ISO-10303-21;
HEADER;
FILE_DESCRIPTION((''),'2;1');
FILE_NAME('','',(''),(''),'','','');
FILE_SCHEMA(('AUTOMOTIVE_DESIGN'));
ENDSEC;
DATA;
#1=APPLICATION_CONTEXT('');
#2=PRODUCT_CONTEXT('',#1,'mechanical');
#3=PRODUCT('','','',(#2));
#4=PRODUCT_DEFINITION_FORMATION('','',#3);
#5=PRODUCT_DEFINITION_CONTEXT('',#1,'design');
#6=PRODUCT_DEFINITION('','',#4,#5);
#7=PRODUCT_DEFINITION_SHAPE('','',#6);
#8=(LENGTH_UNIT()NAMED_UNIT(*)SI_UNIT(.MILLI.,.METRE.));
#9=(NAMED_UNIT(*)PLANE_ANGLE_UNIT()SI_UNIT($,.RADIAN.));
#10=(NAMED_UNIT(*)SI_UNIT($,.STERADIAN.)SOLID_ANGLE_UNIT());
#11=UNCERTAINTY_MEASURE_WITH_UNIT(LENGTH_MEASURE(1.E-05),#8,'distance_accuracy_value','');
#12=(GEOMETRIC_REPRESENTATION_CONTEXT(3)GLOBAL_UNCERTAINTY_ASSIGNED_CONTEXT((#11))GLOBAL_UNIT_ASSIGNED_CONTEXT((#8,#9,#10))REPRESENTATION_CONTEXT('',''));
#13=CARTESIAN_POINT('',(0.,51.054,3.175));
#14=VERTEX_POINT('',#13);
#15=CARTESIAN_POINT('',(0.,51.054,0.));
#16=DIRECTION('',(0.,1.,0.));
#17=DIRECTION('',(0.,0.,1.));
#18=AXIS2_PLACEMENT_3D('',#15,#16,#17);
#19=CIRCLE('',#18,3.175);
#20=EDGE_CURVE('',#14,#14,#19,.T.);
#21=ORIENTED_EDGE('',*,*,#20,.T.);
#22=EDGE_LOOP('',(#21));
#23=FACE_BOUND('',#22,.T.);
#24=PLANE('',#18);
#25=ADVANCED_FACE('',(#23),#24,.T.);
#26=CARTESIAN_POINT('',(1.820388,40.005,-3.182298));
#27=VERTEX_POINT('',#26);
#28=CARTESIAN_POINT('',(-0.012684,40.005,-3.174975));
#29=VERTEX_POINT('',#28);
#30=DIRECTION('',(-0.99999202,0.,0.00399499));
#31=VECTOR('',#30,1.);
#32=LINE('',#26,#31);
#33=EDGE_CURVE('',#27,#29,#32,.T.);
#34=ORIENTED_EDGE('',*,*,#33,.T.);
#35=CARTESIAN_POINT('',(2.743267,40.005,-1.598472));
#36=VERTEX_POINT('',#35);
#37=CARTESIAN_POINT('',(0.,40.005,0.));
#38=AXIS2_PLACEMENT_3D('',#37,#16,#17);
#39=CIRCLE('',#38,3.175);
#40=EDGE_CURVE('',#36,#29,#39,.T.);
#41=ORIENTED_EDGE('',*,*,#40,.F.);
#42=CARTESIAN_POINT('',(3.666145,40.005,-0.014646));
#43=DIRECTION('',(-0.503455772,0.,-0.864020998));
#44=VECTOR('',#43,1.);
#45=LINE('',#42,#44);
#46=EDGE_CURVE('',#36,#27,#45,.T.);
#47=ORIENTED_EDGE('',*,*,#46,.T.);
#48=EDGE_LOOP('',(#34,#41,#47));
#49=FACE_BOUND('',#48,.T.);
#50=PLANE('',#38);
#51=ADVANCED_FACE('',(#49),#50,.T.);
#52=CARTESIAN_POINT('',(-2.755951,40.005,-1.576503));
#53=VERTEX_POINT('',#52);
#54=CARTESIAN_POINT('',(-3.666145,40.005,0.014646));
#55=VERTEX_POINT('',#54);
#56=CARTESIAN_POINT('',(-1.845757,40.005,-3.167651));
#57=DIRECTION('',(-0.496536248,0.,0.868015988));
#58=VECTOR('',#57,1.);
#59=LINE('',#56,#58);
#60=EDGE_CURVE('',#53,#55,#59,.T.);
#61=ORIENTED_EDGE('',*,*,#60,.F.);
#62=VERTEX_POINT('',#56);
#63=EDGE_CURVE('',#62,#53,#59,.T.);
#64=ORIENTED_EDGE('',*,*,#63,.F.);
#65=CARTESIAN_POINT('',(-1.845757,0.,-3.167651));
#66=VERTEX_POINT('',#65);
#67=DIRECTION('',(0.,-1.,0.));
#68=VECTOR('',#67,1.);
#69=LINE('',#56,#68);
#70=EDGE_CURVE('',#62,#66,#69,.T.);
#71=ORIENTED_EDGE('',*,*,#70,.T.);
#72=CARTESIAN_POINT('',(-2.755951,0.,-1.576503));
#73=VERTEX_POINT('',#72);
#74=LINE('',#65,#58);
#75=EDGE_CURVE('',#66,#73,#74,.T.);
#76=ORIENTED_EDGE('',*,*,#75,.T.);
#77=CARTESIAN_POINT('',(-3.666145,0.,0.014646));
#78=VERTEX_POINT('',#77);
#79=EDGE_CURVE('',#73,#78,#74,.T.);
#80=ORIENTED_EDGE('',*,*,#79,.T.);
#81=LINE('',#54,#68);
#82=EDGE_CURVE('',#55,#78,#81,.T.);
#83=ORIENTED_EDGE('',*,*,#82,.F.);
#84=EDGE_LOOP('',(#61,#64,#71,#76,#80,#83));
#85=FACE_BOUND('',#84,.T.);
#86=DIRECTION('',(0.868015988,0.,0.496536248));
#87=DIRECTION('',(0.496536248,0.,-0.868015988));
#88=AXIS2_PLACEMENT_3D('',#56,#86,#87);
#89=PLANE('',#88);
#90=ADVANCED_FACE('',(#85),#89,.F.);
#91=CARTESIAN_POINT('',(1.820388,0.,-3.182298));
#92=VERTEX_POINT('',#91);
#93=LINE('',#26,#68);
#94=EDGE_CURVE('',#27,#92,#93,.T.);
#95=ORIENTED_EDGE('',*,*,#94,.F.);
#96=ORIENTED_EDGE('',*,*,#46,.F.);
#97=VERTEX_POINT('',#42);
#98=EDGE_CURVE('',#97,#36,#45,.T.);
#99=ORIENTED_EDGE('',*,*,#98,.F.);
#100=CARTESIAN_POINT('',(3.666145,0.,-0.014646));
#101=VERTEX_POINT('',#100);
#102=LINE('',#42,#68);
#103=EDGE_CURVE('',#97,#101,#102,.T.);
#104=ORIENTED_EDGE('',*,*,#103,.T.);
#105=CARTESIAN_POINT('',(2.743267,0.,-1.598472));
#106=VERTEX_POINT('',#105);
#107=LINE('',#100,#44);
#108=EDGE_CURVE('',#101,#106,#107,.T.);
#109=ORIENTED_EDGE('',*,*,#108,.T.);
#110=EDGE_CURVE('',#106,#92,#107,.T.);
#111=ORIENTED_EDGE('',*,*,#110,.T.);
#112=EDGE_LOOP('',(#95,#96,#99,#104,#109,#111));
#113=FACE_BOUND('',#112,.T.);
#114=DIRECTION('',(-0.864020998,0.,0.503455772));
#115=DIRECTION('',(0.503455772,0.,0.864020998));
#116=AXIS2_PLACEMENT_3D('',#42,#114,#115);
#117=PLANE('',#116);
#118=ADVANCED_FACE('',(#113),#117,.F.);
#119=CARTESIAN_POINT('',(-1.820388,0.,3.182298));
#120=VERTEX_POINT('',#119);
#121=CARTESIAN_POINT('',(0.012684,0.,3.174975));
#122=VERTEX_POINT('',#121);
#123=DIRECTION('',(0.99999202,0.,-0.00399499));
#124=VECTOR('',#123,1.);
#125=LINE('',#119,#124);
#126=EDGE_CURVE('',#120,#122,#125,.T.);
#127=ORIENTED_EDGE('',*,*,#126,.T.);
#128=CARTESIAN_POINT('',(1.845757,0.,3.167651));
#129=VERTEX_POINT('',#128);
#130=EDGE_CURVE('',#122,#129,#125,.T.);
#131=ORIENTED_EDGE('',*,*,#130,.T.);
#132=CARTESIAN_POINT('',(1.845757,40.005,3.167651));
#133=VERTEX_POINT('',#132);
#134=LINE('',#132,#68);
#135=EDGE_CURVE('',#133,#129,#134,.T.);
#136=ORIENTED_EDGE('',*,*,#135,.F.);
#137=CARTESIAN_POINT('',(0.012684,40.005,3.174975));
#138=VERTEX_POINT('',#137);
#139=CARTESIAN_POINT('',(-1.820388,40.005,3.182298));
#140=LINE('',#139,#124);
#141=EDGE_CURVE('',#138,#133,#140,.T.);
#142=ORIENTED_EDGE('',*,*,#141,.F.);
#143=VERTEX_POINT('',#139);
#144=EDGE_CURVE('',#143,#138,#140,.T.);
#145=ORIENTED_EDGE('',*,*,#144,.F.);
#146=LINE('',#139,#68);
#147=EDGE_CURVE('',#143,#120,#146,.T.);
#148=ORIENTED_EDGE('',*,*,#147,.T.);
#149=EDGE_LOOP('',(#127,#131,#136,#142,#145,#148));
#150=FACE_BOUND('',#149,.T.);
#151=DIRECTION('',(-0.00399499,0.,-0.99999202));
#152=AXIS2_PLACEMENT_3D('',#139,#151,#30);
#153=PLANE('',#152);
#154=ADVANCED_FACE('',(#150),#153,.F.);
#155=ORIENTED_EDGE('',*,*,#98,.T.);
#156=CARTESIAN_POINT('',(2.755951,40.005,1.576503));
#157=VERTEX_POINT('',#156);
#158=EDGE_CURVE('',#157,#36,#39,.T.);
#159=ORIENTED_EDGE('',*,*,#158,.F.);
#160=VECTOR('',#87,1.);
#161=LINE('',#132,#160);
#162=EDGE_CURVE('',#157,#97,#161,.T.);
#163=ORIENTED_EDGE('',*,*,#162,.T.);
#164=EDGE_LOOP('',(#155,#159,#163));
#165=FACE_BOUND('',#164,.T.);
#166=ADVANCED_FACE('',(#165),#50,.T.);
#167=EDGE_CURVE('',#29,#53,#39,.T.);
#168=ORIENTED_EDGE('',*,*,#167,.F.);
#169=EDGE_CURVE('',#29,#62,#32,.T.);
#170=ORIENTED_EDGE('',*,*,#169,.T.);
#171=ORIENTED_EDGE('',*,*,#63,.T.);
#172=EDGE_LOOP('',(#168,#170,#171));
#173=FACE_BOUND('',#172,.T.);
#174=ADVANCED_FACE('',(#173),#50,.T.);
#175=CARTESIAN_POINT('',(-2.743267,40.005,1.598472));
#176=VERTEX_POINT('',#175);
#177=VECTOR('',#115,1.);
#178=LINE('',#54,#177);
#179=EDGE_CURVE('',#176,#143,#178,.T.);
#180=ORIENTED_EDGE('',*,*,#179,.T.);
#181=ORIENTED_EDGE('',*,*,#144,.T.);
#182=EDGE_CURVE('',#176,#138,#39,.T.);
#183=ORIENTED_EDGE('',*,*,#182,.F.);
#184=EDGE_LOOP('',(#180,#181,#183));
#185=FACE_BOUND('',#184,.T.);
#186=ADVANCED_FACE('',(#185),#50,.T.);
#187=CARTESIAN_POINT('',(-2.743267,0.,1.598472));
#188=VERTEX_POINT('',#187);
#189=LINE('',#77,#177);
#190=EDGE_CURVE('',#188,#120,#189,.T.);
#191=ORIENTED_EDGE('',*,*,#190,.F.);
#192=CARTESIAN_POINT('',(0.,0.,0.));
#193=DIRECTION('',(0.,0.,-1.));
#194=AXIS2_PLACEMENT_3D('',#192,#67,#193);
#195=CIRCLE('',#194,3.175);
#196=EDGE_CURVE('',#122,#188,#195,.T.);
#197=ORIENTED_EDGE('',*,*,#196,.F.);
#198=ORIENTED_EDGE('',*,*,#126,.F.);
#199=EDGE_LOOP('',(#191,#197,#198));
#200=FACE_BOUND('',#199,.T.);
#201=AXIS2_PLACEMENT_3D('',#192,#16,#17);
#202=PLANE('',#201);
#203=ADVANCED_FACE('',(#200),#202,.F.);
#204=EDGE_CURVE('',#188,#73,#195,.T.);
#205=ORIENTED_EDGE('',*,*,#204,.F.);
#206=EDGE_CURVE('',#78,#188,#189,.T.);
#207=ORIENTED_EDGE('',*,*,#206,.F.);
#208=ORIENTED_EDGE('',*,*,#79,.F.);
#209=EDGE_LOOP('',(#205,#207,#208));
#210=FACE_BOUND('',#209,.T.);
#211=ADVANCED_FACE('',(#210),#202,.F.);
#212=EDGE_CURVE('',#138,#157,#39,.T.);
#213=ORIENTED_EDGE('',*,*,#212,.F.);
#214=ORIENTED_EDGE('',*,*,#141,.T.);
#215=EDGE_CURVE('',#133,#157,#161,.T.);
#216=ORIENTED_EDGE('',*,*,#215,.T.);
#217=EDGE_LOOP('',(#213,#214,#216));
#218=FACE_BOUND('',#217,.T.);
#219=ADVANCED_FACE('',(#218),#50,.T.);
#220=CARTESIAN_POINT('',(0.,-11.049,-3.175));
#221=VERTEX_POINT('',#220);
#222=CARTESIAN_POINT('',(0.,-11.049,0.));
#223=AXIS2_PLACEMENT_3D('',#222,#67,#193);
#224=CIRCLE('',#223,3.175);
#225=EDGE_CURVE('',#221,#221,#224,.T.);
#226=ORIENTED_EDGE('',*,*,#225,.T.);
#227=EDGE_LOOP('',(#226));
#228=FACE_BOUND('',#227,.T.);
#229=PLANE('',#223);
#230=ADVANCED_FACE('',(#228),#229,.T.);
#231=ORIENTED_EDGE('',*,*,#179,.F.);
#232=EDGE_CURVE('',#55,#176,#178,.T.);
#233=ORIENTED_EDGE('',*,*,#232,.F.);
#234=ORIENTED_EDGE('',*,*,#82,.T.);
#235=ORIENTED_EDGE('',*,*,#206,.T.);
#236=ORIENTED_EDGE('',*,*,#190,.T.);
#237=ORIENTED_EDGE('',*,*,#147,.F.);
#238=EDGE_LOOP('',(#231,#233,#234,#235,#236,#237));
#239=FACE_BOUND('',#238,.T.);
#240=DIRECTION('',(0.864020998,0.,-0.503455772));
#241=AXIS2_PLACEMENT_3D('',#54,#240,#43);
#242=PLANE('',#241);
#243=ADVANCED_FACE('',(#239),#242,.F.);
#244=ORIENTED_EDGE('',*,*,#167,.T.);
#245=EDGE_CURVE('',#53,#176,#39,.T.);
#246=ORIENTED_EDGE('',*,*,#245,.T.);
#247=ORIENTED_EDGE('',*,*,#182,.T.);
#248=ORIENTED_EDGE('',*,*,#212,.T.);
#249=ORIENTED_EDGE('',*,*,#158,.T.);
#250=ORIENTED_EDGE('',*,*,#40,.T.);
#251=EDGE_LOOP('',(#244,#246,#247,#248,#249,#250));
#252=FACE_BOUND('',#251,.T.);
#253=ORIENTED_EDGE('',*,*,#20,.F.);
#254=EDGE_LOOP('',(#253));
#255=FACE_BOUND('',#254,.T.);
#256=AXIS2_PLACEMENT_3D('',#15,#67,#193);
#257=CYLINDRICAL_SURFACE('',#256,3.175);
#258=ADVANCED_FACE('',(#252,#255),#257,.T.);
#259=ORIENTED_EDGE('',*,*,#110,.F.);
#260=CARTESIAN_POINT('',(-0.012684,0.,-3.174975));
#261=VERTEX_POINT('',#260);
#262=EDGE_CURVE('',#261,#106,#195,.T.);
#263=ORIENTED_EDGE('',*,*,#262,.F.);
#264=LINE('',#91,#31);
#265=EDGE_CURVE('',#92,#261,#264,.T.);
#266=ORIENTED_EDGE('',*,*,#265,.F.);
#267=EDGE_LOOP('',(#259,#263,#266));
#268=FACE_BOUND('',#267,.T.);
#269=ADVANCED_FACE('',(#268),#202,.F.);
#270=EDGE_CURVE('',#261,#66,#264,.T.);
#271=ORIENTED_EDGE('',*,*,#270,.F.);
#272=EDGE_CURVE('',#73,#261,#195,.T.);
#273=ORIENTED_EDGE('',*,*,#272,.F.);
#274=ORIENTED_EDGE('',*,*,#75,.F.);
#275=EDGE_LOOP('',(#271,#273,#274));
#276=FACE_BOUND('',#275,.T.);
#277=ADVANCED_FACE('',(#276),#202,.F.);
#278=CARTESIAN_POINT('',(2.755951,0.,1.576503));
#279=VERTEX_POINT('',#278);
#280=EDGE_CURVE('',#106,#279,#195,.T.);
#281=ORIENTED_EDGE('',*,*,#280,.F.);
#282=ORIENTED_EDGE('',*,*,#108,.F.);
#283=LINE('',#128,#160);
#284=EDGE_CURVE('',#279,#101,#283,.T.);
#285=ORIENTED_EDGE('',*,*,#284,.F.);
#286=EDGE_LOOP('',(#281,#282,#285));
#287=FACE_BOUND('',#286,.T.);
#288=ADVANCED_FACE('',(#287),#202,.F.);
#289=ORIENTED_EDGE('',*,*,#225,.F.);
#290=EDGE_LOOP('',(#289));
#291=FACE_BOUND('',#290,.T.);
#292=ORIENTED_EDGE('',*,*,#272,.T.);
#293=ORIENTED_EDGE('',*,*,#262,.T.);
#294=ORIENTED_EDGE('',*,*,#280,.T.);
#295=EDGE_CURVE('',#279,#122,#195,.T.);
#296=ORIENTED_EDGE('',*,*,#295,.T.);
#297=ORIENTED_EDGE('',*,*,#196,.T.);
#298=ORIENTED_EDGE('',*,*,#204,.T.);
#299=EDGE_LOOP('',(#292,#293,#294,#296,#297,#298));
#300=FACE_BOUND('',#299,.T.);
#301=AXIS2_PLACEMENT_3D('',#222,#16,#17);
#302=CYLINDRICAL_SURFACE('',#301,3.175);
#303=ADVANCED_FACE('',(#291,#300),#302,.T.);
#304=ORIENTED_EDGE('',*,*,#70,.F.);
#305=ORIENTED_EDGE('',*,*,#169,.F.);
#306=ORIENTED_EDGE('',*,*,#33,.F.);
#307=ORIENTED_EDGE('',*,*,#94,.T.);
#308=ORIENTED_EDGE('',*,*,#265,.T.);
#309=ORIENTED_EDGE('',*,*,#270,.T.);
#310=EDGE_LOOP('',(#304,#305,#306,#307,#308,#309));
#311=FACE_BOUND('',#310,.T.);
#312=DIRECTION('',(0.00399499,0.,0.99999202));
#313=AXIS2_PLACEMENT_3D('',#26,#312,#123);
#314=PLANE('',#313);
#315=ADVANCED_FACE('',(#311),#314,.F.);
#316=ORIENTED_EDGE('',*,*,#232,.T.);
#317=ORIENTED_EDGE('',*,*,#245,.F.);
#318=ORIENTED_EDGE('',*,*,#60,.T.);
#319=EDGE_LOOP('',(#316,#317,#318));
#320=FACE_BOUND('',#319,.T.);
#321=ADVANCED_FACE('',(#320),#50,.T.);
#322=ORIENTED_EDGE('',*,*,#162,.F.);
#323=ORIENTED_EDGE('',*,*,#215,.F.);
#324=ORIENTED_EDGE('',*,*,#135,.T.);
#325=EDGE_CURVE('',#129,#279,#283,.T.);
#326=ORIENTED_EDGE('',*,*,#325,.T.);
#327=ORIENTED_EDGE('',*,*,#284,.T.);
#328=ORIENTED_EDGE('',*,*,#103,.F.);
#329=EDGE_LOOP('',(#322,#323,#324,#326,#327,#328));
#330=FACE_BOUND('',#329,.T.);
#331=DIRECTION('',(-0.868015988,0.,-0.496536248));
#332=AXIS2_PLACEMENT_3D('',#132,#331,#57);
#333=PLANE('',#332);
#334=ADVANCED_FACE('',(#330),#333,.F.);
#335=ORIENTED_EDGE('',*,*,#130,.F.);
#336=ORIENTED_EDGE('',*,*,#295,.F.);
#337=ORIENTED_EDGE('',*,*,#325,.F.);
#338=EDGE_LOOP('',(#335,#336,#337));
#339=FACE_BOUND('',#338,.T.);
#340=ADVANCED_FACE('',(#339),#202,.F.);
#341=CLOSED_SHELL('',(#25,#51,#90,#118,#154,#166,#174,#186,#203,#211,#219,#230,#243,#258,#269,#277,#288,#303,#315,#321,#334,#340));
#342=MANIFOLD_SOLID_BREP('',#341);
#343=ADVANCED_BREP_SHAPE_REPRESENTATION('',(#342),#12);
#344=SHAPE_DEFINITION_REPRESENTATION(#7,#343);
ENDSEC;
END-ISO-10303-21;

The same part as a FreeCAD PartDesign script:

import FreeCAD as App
import Part
import Sketcher
Q = App.Units.Quantity


def add_polygon(sketch, points):
    """Adds a closed chain of lines whose ends are joined by coincident constraints."""
    first, n = sketch.GeometryCount, len(points)
    for a, b in zip(points, points[1:] + points[:1]):
        sketch.addGeometry(Part.LineSegment(App.Vector(*a, 0), App.Vector(*b, 0)), False)
    for i in range(n):
        sketch.addConstraint(Sketcher.Constraint("Coincident", first + i, 2, first + (i + 1) % n, 1))

doc = App.newDocument("Part")
body = doc.addObject("PartDesign::Body", "Body")

sketch1 = body.newObject("Sketcher::SketchObject", "Sketch")
sketch1.AttachmentSupport = (doc.getObject("XZ_Plane"), [""])
sketch1.MapMode = "FlatFace"
add_polygon(sketch1, [(1.8, -3.2), (-1.8, -3.2), (-3.7, 0), (-1.8, 3.2), (1.8, 3.2), (3.7, 0)])
sketch1.addConstraint([
    Sketcher.Constraint("Symmetric", 0, 2, 3, 2, -1, 1),
    Sketcher.Constraint("Symmetric", 1, 2, 4, 2, -1, 1),
    Sketcher.Constraint("Symmetric", 2, 2, 5, 2, -1, 1),
    Sketcher.Constraint("Equal", 0, 1),
    Sketcher.Constraint("Equal", 1, 2),
    Sketcher.Constraint("DistanceX", 1, 2, 3, 2, Q("5.511902 mm")),
    Sketcher.Constraint("DistanceY", 0, 2, -1, 1, Q("3.167651 mm")),
    Sketcher.Constraint("DistanceX", 2, 2, -1, 1, Q("1.820388 mm")),
    Sketcher.Constraint("DistanceX", 1, 2, 0, 2, Q("1.820388 mm")),
])
pad1 = body.newObject("PartDesign::Pad", "Pad")
pad1.Profile = sketch1
pad1.Length = Q("1.575 in")
pad1.Reversed = True

sketch2 = body.newObject("Sketcher::SketchObject", "Sketch001")
sketch2.AttachmentSupport = (doc.getObject("XZ_Plane"), [""])
sketch2.MapMode = "FlatFace"
sketch2.AttachmentOffset = App.Placement(App.Vector(0, 0, -1.575 * 25.4), App.Rotation())
sketch2.addGeometry(Part.Circle(App.Vector(0, 0, 0), App.Vector(0, 0, 1), 3.2), False)
sketch2.addConstraint([
    Sketcher.Constraint("Coincident", 0, 3, -1, 1),
    Sketcher.Constraint("Diameter", 0, Q("0.25 in")),
])
pad2 = body.newObject("PartDesign::Pad", "Pad001")
pad2.Profile = sketch2
pad2.Length = Q("0.435 in")
pad2.Reversed = True

sketch3 = body.newObject("Sketcher::SketchObject", "Sketch002")
sketch3.AttachmentSupport = (doc.getObject("XZ_Plane"), [""])
sketch3.MapMode = "FlatFace"
sketch3.AttachmentOffset = App.Placement(App.Vector(0, 0, 0.435 * 25.4), App.Rotation())
sketch3.addGeometry(Part.Circle(App.Vector(0, 0, 0), App.Vector(0, 0, 1), 3.2), False)
sketch3.addConstraint([
    Sketcher.Constraint("Coincident", 0, 3, -1, 1),
    Sketcher.Constraint("Diameter", 0, Q("0.25 in")),
])
pad3 = body.newObject("PartDesign::Pad", "Pad002")
pad3.Profile = sketch3
pad3.Length = Q("0.435 in")
pad3.Reversed = True

doc.recompute()
